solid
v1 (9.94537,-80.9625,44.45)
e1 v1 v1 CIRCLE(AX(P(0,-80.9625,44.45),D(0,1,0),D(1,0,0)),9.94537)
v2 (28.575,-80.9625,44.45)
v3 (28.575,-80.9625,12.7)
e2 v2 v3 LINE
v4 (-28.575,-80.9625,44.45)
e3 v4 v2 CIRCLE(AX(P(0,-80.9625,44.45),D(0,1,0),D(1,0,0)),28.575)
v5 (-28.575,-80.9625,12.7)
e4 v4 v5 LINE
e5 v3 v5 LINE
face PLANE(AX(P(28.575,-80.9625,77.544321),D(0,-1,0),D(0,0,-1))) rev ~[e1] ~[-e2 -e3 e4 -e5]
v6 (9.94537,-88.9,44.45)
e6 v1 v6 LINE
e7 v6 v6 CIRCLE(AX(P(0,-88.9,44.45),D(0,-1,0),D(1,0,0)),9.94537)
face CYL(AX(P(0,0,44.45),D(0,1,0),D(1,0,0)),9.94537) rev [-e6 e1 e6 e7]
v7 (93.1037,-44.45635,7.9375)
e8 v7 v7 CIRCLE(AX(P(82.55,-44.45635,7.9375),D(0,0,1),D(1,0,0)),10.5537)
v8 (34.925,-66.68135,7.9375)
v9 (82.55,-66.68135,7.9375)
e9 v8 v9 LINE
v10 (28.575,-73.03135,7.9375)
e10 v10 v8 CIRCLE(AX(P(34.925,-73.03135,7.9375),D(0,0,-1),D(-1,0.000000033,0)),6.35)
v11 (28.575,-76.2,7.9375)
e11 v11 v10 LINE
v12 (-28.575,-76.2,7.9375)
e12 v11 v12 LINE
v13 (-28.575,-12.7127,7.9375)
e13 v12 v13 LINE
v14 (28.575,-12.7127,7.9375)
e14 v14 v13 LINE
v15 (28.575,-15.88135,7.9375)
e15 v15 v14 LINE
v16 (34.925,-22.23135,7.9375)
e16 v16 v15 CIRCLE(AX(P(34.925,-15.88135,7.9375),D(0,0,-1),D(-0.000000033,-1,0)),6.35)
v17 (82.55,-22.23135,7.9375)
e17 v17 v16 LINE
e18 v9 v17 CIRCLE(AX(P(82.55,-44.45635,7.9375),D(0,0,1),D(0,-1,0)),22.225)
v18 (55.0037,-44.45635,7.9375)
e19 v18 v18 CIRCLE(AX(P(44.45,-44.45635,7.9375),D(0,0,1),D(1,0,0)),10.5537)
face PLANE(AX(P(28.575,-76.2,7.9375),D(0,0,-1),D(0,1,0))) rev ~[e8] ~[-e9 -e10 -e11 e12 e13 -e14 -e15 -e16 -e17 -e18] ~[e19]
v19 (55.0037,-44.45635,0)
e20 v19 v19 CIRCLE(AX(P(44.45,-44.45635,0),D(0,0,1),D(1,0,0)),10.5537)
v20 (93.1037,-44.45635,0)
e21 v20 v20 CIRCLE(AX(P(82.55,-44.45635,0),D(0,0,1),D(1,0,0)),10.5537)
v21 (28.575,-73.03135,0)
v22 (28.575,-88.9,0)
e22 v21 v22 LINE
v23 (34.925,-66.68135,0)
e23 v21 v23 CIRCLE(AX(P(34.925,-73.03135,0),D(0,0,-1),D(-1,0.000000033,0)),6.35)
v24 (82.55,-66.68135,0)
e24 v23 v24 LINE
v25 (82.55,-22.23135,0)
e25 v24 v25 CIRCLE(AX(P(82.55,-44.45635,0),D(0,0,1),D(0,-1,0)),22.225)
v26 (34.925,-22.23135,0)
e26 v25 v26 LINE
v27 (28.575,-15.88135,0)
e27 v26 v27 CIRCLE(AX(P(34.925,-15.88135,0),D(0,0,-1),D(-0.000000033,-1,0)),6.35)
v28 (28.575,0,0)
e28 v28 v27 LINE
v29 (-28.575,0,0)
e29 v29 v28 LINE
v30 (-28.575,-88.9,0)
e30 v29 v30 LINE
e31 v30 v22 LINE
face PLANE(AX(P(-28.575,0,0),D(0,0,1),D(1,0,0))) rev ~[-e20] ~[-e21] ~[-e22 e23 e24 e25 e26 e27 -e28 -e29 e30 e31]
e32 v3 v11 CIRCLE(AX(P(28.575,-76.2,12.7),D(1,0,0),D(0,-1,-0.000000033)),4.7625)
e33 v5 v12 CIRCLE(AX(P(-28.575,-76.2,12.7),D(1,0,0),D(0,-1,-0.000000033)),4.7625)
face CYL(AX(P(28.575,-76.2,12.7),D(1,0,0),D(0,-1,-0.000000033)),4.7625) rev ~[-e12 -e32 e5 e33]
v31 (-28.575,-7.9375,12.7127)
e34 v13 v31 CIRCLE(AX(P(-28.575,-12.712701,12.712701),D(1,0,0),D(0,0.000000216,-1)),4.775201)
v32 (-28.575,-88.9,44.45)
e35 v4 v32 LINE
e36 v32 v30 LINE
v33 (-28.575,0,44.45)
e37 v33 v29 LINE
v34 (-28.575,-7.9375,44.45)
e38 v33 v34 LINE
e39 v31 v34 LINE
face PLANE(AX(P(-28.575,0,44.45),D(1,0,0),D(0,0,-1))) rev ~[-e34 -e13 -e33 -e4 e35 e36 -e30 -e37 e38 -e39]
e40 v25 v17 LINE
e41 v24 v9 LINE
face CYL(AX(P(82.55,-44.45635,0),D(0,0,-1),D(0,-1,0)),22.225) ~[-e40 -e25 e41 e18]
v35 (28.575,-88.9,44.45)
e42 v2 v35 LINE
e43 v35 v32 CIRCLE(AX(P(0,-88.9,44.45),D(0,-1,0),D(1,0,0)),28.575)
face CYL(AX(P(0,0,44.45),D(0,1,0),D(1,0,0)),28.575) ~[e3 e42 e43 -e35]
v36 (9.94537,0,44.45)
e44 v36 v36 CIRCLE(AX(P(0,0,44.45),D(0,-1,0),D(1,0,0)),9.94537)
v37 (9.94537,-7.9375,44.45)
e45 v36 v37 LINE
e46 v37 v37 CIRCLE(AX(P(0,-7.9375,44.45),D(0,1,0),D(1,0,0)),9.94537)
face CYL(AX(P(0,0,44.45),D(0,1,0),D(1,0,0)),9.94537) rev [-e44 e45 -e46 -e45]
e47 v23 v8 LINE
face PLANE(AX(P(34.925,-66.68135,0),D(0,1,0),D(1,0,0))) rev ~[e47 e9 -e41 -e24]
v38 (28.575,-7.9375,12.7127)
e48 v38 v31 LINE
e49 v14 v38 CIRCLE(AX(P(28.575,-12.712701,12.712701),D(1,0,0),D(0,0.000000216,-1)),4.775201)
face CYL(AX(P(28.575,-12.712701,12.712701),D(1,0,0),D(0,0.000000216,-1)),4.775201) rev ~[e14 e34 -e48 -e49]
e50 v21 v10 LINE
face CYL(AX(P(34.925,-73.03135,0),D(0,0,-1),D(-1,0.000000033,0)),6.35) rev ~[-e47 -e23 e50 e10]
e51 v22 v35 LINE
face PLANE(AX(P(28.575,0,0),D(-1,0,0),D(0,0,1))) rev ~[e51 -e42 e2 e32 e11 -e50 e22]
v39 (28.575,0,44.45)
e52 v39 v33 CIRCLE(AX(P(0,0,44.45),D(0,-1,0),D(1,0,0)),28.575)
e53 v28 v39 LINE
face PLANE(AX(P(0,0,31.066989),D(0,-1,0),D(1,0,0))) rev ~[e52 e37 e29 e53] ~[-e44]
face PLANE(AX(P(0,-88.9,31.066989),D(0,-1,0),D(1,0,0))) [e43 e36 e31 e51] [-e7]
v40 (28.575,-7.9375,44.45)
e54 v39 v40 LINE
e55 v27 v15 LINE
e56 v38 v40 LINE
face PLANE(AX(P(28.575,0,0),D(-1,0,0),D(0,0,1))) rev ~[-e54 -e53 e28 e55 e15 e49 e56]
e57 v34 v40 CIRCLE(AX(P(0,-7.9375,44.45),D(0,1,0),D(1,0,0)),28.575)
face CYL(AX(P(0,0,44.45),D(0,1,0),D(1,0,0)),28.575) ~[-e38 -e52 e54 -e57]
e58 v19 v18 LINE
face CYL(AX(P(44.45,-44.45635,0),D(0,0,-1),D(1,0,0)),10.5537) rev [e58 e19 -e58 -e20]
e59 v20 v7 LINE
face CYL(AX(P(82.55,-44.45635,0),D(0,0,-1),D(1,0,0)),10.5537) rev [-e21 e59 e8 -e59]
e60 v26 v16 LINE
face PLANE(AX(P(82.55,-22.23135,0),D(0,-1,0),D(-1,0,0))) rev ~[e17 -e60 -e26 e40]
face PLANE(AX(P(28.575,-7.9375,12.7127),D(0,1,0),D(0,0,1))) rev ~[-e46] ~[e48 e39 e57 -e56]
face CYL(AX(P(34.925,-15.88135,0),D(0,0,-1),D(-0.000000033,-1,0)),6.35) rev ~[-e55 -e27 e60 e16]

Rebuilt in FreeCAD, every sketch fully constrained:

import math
import FreeCAD as App
import Part
import Sketcher

V = App.Vector
Q = App.Units.Quantity

doc = App.newDocument("Part")
body = doc.addObject("PartDesign::Body", "Body")

# Sketch on XZ plane
sketch1 = body.newObject("Sketcher::SketchObject", "Sketch")
sketch1.AttachmentSupport = (doc.getObject("XZ_Plane"), [""])
sketch1.MapMode = "FlatFace"
sketch1.addGeometry([
    Part.LineSegment(V(28.575, 0, 0), V(28.575, 44.45, 0)),  # 0
    Part.ArcOfCircle(Part.Circle(V(0, 44.45, 0), V(0, 0, 1), 28.575), math.radians(0), math.radians(180)),  # 1
    Part.LineSegment(V(-28.575, 44.45, 0), V(-28.575, 0, 0)),  # 2
    Part.LineSegment(V(-28.575, 0, 0), V(28.575, 0, 0)),  # 3
    Part.Circle(V(0, 44.45, 0), V(0, 0, 1), 9.94537),  # 4
], False)
sketch1.addConstraint([
    Sketcher.Constraint("Tangent", 0, 2, 1, 1),
    Sketcher.Constraint("Tangent", 1, 2, 2, 1),
    Sketcher.Constraint("Coincident", 2, 2, 3, 1),
    Sketcher.Constraint("Coincident", 3, 2, 0, 1),
    Sketcher.Constraint("Vertical", 0),
    Sketcher.Constraint("Vertical", 2),
    Sketcher.Constraint("Horizontal", 3),
    Sketcher.Constraint("Coincident", 4, 3, 1, 3),
    Sketcher.Constraint("Symmetric", 2, 2, 3, 2, -1, 1),
    Sketcher.Constraint("Radius", 1, Q("1.125 in")),
    Sketcher.Constraint("Diameter", 4, Q("0.7831 in")),
    Sketcher.Constraint("DistanceY", 0, 1, 0, 2, Q("1.75 in")),
])
pad1 = body.newObject("PartDesign::Pad", "Pad")
pad1.Profile = sketch1
pad1.Length = Q("3.5 in")

# Sketch on YZ plane
sketch2 = body.newObject("Sketcher::SketchObject", "Sketch001")
sketch2.AttachmentSupport = (doc.getObject("YZ_Plane"), [""])
sketch2.MapMode = "FlatFace"
sketch2.AttachmentOffset = App.Placement(V(0, 0, 1.125 * 25.4), App.Rotation())
sketch2.addGeometry([
    Part.LineSegment(V(-7.9375, 77.544321, 0), V(-80.9625, 77.544321, 0)),  # 0
    Part.LineSegment(V(-80.9625, 77.544321, 0), V(-80.9625, 12.7, 0)),  # 1
    Part.ArcOfCircle(Part.Circle(V(-76.2, 12.7, 0), V(0, 0, 1), 4.7625), math.radians(-179.999998), math.radians(-90.000002)),  # 2
    Part.LineSegment(V(-76.2, 7.9375, 0), V(-12.7127, 7.9375, 0)),  # 3
    Part.ArcOfCircle(Part.Circle(V(-12.712701, 12.712701, 0), V(0, 0, 1), 4.775201), math.radians(-89.999988), math.radians(-0.000012)),  # 4
    Part.LineSegment(V(-7.9375, 12.7127, 0), V(-7.9375, 77.544321, 0)),  # 5
], False)
sketch2.addConstraint([
    Sketcher.Constraint("Coincident", 0, 2, 1, 1),
    Sketcher.Constraint("Tangent", 1, 2, 2, 1),
    Sketcher.Constraint("Tangent", 2, 2, 3, 1),
    Sketcher.Constraint("Tangent", 3, 2, 4, 1),
    Sketcher.Constraint("Tangent", 4, 2, 5, 1),
    Sketcher.Constraint("Coincident", 5, 2, 0, 1),
    Sketcher.Constraint("Horizontal", 0),
    Sketcher.Constraint("Vertical", 1),
    Sketcher.Constraint("Horizontal", 3),
    Sketcher.Constraint("Vertical", 5),
    Sketcher.Constraint("DistanceX", 2, 3, -1, 1, Q("3 in")),
    Sketcher.Constraint("Radius", 2, Q("0.1875 in")),
    Sketcher.Constraint("Radius", 4, Q("0.188 in")),
    Sketcher.Constraint("DistanceY", -1, 1, 2, 3, Q("0.5 in")),
    Sketcher.Constraint("DistanceX", 0, 2, 0, 1, Q("2.875 in")),
    Sketcher.Constraint("DistanceY", 1, 2, 1, 1, Q("64.844321 mm")),
])
pocket1 = body.newObject("PartDesign::Pocket", "Pocket")
pocket1.Profile = sketch2
pocket1.Type = "ThroughAll"

# Sketch on XY plane
sketch3 = body.newObject("Sketcher::SketchObject", "Sketch002")
sketch3.AttachmentSupport = (doc.getObject("XY_Plane"), [""])
sketch3.MapMode = "FlatFace"
sketch3.addGeometry([
    Part.ArcOfCircle(Part.Circle(V(34.925, -15.88135, 0), V(0, 0, 1), 6.35), math.radians(-179.999998), math.radians(-90.000002)),  # 0
    Part.LineSegment(V(28.575, -15.88135, 0), V(28.575, -73.03135, 0)),  # 1
    Part.ArcOfCircle(Part.Circle(V(34.925, -73.03135, 0), V(0, 0, 1), 6.35), math.radians(90.000002), math.radians(179.999998)),  # 2
    Part.LineSegment(V(34.925, -66.68135, 0), V(82.55, -66.68135, 0)),  # 3
    Part.ArcOfCircle(Part.Circle(V(82.55, -44.45635, 0), V(0, 0, 1), 22.225), math.radians(-90), math.radians(90)),  # 4
    Part.LineSegment(V(82.55, -22.23135, 0), V(34.925, -22.23135, 0)),  # 5
    Part.Circle(V(44.45, -44.45635, 0), V(0, 0, 1), 10.5537),  # 6
    Part.Circle(V(82.55, -44.45635, 0), V(0, 0, 1), 10.5537),  # 7
], False)
sketch3.addConstraint([
    Sketcher.Constraint("Tangent", 0, 1, 1, 1),
    Sketcher.Constraint("Tangent", 1, 2, 2, 2),
    Sketcher.Constraint("Tangent", 2, 1, 3, 1),
    Sketcher.Constraint("Tangent", 3, 2, 4, 1),
    Sketcher.Constraint("Tangent", 4, 2, 5, 1),
    Sketcher.Constraint("Tangent", 5, 2, 0, 2),
    Sketcher.Constraint("Vertical", 1),
    Sketcher.Constraint("Horizontal", 3),
    Sketcher.Constraint("Horizontal", 5),
    Sketcher.Constraint("Coincident", 7, 3, 4, 3),
    Sketcher.Constraint("Equal", 0, 2),
    Sketcher.Constraint("Equal", 6, 7),
    Sketcher.Constraint("Horizontal", 4, 3, 6, 3),
    Sketcher.Constraint("Radius", 0, Q("0.25 in")),
    Sketcher.Constraint("Diameter", 6, Q("0.831 in")),
    Sketcher.Constraint("Radius", 4, Q("0.875 in")),
    Sketcher.Constraint("DistanceX", 6, 3, 4, 3, Q("1.5 in")),
    Sketcher.Constraint("DistanceX", 3, 1, 3, 2, Q("1.875 in")),
    Sketcher.Constraint("DistanceX", -1, 1, 4, 3, Q("3.25 in")),
    Sketcher.Constraint("DistanceY", 0, 3, -1, 1, Q("15.88135 mm")),
])
pad2 = body.newObject("PartDesign::Pad", "Pad001")
pad2.Profile = sketch3
pad2.Length = Q("0.3125 in")

doc.recompute()
